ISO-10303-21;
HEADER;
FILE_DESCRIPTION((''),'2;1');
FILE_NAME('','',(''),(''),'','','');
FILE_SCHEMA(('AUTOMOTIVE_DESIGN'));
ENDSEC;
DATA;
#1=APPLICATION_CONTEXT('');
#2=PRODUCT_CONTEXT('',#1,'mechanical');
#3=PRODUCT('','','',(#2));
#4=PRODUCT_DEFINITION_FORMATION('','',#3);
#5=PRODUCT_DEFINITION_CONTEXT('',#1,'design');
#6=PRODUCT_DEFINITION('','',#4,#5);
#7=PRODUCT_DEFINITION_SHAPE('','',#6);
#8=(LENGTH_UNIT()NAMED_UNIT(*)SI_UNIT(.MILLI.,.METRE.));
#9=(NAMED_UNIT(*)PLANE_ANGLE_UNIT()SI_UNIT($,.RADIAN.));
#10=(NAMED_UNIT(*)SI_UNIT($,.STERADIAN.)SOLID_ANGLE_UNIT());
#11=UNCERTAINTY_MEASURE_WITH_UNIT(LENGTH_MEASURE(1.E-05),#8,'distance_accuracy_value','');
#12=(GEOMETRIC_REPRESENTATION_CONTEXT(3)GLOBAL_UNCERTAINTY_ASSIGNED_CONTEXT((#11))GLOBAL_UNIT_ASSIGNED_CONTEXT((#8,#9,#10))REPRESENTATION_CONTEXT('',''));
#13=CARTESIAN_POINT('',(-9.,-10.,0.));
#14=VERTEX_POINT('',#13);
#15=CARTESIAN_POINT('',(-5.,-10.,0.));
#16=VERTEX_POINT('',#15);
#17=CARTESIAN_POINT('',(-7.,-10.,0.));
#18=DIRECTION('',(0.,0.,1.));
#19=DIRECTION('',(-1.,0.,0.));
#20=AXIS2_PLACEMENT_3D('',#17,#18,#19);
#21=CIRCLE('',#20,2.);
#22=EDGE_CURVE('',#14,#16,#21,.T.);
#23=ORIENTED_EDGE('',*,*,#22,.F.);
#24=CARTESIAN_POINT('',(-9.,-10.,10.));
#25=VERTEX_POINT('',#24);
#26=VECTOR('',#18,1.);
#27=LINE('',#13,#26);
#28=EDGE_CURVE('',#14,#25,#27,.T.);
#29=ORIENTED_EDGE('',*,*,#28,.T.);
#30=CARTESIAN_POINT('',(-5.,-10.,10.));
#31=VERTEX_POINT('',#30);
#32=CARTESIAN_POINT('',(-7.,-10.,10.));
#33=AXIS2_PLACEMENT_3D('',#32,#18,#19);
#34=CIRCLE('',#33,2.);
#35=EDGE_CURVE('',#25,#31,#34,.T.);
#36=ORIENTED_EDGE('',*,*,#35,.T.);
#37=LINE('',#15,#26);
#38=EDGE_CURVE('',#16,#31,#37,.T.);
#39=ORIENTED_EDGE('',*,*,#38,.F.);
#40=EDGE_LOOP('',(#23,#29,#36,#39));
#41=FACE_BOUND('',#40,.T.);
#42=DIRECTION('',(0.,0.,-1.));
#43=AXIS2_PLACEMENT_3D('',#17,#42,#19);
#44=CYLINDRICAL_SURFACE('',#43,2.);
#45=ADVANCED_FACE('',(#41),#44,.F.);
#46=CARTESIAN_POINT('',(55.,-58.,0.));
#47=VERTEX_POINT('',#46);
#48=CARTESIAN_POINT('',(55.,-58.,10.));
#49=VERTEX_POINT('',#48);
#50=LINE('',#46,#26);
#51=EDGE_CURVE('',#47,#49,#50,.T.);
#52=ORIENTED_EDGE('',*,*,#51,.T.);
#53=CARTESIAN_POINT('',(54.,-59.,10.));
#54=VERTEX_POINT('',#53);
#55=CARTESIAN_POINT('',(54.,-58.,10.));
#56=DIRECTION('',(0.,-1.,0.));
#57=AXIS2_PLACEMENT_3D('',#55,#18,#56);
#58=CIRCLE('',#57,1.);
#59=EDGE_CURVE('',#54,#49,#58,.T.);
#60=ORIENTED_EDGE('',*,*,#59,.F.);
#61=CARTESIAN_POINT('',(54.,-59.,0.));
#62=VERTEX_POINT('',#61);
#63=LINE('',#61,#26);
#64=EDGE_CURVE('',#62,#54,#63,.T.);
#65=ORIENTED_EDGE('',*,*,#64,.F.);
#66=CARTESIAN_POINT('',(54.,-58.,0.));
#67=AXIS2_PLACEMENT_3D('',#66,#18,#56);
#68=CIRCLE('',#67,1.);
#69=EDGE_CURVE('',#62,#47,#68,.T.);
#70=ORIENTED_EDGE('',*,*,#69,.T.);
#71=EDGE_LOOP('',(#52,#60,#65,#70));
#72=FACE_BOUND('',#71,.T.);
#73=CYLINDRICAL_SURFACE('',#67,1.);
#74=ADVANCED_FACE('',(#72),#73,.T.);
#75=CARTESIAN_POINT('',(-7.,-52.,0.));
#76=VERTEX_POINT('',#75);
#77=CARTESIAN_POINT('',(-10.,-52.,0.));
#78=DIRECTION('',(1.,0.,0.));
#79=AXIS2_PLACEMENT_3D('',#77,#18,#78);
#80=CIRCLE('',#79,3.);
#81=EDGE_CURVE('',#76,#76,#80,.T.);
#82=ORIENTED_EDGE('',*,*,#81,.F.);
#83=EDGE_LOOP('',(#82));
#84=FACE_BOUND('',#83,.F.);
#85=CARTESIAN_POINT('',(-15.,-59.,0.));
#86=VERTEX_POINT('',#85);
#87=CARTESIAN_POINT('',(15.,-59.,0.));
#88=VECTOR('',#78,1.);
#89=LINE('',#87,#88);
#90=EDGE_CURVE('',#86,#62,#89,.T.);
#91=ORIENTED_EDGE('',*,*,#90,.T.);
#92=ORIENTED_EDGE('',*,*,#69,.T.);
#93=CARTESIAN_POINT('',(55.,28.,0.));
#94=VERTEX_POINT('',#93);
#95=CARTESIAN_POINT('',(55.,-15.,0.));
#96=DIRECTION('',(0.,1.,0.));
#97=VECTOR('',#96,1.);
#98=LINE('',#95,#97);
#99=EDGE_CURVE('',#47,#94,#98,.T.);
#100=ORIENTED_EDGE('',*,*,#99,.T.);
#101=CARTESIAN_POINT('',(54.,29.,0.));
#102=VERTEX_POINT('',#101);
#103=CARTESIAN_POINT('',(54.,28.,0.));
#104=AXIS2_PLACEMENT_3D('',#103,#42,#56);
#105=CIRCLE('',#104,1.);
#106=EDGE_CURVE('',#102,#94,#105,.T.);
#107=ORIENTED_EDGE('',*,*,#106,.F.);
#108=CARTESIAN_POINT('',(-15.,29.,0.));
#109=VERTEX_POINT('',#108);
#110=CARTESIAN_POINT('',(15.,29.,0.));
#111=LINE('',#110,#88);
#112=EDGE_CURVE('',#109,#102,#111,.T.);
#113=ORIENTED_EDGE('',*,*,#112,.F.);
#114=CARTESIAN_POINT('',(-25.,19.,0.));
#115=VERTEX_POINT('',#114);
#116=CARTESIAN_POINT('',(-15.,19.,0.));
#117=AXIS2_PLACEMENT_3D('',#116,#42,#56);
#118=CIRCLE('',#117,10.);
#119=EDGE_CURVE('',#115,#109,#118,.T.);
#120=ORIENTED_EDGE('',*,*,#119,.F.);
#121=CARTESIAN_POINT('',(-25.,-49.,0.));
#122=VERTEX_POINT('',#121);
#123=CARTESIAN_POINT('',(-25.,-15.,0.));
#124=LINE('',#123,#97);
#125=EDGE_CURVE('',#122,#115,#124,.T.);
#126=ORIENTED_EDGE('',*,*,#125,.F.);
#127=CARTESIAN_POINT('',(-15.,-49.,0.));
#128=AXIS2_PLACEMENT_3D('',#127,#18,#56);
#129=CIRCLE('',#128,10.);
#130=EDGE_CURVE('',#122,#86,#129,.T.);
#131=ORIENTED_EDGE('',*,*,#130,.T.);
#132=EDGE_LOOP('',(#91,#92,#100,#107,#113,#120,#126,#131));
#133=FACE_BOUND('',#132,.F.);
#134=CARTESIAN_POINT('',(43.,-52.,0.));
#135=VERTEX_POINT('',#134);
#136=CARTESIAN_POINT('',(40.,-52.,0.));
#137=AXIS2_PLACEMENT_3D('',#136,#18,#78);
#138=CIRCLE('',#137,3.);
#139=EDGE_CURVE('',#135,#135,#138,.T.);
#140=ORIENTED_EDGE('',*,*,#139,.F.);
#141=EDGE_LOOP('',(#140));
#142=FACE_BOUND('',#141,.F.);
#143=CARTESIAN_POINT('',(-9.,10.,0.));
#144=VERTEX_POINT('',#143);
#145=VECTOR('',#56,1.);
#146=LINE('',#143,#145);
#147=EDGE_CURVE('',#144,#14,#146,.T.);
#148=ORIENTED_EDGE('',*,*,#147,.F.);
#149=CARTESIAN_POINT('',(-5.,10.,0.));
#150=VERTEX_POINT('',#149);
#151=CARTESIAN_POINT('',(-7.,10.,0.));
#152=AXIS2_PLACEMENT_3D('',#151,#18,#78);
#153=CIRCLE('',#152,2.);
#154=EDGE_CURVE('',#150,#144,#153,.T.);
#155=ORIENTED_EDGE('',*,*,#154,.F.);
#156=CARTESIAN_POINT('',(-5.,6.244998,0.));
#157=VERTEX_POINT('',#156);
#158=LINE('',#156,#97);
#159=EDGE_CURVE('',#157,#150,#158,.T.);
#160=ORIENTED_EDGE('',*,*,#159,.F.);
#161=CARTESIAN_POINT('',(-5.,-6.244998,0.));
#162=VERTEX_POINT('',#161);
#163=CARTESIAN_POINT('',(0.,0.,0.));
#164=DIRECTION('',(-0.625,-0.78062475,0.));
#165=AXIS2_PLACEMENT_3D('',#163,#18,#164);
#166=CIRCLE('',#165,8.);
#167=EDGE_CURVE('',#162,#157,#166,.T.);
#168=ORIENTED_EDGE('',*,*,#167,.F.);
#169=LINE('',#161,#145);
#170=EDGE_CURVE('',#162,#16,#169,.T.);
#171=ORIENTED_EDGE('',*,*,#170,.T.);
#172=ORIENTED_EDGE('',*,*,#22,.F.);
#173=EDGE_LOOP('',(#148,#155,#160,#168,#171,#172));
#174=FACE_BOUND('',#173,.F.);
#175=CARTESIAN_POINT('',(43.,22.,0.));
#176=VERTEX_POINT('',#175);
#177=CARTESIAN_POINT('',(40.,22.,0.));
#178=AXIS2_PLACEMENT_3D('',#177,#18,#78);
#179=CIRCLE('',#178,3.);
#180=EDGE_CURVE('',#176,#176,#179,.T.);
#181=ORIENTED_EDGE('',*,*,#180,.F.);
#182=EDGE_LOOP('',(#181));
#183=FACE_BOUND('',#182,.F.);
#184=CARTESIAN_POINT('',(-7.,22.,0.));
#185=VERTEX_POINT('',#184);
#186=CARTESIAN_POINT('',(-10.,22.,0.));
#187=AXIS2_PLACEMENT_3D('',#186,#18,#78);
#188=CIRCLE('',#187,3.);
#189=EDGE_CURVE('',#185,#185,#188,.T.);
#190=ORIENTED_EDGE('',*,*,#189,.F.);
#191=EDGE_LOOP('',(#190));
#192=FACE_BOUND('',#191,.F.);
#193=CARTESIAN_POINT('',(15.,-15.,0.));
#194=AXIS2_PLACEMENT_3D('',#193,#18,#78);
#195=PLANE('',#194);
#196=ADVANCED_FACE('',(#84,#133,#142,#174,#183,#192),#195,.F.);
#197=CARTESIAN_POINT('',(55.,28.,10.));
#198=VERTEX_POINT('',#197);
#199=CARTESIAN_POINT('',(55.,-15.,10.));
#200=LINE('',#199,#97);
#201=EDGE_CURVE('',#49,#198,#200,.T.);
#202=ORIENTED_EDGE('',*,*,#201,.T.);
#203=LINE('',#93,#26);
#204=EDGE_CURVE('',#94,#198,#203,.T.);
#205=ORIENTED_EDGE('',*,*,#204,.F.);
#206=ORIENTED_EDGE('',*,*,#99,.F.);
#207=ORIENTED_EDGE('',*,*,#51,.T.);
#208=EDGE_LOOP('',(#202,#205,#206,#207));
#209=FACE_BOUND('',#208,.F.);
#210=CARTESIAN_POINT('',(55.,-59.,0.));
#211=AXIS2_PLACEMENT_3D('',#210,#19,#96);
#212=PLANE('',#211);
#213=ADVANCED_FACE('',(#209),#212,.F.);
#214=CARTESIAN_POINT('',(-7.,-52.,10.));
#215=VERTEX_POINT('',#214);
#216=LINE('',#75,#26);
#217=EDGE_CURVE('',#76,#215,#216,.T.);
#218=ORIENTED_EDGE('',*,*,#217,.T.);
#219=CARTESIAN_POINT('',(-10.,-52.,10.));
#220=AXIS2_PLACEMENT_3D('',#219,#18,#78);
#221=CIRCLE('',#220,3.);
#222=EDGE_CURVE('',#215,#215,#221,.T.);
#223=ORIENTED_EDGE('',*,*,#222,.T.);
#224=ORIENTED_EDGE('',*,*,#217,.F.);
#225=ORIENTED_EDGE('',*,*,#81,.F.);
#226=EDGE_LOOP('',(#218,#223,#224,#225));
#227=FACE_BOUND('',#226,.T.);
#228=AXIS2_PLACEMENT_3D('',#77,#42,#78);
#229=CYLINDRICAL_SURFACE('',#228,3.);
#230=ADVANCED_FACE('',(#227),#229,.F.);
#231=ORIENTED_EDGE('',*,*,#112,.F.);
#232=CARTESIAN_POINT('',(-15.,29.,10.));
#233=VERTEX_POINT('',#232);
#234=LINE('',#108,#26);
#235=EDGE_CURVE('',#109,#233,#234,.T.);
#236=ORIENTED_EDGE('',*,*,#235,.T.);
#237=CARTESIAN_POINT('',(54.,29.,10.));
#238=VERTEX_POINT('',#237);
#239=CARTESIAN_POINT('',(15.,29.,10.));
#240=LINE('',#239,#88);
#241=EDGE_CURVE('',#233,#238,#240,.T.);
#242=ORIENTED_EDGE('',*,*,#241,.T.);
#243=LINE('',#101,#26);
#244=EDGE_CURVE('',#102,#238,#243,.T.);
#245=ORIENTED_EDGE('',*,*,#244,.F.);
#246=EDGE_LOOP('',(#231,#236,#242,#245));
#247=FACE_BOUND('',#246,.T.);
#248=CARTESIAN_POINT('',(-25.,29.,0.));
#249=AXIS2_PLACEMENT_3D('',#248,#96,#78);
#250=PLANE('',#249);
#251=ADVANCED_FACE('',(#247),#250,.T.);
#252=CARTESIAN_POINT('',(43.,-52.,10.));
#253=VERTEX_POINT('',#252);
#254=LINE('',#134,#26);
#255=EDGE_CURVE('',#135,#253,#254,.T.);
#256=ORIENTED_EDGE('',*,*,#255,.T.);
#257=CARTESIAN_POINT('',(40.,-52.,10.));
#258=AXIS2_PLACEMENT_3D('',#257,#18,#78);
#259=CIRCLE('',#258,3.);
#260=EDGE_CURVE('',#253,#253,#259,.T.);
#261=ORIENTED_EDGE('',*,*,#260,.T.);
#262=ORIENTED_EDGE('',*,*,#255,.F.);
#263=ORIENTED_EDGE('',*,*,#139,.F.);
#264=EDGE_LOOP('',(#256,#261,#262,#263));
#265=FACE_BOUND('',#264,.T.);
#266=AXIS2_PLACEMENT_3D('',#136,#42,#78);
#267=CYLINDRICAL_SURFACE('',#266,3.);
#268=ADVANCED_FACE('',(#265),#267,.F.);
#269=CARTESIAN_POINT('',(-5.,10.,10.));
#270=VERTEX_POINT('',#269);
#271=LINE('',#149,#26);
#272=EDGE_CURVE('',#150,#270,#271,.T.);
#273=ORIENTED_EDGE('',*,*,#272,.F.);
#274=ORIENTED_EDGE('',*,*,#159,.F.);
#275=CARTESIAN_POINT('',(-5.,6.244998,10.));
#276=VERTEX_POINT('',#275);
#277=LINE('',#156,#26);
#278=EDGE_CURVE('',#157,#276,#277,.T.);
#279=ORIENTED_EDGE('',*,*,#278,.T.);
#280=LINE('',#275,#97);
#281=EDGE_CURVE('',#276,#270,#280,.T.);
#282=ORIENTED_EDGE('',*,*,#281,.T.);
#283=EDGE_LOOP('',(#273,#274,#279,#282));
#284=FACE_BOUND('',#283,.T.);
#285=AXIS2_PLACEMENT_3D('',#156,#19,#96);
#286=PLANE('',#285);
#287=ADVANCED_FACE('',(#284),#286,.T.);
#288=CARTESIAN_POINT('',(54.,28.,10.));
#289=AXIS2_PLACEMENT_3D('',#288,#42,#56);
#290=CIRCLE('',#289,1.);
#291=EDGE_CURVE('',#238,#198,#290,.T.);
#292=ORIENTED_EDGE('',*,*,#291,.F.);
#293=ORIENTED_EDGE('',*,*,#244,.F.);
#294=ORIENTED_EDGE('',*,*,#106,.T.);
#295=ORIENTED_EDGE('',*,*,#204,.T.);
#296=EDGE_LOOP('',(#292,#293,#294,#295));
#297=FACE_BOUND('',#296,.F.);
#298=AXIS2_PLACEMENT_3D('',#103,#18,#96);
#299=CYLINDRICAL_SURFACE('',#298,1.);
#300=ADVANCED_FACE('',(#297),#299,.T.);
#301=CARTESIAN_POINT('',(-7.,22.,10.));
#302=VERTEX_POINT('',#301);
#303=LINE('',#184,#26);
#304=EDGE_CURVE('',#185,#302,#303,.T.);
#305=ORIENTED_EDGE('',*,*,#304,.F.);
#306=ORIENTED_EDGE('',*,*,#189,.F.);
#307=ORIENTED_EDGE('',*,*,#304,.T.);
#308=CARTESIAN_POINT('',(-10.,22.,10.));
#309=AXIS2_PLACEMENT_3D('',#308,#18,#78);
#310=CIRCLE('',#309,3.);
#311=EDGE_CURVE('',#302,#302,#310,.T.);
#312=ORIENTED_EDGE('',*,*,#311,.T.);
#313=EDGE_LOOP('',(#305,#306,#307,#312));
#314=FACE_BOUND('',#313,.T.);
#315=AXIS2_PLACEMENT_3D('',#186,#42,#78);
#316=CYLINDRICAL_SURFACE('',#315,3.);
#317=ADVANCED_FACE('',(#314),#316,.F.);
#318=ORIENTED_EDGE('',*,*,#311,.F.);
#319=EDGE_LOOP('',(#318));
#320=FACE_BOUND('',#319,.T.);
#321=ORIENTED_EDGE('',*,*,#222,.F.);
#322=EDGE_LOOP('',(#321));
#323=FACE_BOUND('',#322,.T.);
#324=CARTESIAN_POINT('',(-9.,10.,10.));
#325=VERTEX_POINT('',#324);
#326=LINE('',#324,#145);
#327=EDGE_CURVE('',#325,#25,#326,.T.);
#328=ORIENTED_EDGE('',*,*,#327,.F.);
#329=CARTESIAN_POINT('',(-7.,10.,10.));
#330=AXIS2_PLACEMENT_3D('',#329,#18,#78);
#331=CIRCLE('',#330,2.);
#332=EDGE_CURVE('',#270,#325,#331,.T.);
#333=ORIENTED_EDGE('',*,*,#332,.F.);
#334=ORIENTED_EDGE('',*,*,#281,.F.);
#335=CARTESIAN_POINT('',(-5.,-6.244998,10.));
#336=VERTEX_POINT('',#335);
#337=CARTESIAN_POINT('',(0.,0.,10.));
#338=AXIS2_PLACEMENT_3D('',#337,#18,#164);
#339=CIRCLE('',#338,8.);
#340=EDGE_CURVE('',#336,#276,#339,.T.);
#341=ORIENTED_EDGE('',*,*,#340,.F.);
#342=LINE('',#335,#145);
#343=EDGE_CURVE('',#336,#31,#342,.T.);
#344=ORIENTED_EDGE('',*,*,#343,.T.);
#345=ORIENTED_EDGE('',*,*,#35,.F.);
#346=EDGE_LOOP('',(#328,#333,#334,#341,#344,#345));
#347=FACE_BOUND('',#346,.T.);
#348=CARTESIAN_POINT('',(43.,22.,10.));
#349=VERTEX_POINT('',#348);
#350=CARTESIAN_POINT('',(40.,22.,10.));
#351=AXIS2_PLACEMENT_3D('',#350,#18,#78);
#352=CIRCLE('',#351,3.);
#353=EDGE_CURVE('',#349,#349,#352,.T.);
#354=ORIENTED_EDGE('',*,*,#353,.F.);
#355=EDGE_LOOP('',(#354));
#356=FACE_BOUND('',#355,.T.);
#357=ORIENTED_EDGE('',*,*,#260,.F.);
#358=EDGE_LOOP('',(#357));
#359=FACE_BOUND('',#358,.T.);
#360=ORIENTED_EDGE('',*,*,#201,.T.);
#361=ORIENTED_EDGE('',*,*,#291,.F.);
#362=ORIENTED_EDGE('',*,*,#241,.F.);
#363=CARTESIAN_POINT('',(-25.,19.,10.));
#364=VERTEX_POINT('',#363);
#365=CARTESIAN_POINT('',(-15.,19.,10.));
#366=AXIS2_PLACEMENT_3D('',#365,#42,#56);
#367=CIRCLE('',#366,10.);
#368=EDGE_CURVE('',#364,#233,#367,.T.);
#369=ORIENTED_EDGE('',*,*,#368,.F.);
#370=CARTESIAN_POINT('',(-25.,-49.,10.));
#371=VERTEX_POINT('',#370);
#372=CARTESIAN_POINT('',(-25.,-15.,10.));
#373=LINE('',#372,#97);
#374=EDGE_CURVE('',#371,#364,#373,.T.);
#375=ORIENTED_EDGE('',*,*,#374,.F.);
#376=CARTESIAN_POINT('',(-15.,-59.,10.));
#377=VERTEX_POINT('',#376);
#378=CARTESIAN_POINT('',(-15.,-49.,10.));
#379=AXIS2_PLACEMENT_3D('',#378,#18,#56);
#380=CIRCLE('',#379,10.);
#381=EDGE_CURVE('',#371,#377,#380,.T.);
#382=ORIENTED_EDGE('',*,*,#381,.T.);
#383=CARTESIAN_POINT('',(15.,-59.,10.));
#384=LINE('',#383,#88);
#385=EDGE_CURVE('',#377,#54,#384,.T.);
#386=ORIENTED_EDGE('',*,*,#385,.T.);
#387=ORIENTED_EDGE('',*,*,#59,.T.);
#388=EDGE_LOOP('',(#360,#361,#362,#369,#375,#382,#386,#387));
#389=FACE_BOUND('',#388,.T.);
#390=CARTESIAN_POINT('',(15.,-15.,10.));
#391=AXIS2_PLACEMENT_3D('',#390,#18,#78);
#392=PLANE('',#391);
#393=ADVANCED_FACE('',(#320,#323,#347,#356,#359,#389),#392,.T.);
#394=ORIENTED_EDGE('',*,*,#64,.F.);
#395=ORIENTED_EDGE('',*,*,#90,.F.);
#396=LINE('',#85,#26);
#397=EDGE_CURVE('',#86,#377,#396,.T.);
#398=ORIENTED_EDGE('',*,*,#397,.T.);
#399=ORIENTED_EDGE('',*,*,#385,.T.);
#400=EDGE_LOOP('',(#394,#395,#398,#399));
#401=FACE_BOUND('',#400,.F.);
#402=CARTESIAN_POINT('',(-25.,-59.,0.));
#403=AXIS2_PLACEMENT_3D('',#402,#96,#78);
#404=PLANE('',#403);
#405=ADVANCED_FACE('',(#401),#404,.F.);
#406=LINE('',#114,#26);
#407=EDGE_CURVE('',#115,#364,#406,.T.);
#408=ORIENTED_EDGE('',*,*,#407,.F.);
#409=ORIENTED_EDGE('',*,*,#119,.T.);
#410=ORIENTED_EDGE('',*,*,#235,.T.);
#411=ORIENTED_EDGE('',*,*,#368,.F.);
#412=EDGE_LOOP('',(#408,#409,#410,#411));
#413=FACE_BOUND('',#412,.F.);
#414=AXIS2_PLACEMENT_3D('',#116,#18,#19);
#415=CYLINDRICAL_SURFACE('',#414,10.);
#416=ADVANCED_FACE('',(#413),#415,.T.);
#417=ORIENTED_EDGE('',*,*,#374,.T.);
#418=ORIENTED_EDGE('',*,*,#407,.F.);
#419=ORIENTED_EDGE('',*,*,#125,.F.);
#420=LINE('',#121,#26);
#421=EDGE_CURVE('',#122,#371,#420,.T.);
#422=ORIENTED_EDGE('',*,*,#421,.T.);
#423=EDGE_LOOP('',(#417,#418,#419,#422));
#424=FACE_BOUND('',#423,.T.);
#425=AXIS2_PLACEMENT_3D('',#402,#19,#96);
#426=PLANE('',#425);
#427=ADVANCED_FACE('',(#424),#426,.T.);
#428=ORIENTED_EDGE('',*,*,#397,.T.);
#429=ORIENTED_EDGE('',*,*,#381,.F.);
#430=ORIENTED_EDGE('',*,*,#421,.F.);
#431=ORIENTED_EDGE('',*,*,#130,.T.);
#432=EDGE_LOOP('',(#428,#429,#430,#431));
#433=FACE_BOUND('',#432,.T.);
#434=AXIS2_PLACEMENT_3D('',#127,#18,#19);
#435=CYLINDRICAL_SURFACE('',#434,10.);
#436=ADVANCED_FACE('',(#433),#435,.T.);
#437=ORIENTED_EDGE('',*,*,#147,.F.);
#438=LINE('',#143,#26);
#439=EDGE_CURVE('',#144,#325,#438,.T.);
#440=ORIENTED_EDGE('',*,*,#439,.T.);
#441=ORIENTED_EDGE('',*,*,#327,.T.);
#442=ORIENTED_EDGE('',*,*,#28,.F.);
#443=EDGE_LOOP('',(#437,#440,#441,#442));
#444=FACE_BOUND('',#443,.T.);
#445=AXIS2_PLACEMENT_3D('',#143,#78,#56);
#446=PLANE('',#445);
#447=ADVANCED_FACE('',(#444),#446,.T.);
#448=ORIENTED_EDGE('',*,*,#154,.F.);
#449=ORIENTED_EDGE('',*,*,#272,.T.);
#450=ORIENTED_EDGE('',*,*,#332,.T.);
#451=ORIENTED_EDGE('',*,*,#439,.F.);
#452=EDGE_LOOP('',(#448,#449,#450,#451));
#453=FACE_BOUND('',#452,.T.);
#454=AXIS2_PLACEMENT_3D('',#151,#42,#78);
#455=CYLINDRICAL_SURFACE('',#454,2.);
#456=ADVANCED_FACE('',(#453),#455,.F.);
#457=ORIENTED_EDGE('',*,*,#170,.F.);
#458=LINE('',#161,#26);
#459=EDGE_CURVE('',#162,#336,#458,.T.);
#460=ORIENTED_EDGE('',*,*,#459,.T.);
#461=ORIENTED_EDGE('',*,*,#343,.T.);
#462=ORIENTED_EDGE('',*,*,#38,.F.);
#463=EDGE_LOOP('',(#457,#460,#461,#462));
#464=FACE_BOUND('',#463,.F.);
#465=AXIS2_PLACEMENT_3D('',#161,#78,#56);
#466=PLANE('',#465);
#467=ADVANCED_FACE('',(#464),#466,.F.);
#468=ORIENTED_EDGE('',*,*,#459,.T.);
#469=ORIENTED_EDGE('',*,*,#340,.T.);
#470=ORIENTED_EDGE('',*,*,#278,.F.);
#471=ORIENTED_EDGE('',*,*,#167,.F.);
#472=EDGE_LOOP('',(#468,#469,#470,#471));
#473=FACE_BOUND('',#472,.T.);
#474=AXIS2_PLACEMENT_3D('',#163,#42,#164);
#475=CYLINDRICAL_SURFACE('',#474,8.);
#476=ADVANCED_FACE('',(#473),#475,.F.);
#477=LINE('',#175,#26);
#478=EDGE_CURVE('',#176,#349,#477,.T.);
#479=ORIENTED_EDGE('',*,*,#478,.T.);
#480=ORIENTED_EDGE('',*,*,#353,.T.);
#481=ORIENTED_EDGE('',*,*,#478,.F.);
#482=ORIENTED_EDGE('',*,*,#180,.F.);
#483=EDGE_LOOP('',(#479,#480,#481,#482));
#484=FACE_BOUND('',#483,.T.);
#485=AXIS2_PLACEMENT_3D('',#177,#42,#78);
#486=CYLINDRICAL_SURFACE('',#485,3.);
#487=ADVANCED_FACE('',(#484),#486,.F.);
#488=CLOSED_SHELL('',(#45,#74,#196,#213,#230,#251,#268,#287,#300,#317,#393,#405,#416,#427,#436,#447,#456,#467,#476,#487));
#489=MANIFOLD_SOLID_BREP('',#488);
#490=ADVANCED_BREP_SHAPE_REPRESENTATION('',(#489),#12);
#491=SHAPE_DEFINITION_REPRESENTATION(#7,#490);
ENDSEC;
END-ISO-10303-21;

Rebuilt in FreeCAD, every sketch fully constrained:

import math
import FreeCAD as App
import Part
import Sketcher

V = App.Vector
Q = App.Units.Quantity


def edges_at(feature, points):
    """Names of the edges that pass closest to the given points."""
    edges = feature.Shape.Edges
    near = lambda p: min(range(len(edges)), key=lambda i: edges[i].distToShape(Part.Vertex(*p))[0])
    return sorted({f"Edge{near(p) + 1}" for p in points})

doc = App.newDocument("Part")
body = doc.addObject("PartDesign::Body", "Body")

sketch1 = body.newObject("Sketcher::SketchObject", "Sketch")
sketch1.AttachmentSupport = (doc.getObject("XY_Plane"), [""])
sketch1.MapMode = "FlatFace"
sketch1.addGeometry([
    Part.LineSegment(V(-25, 29, 0), V(-25, -59, 0)),
    Part.LineSegment(V(-25, -59, 0), V(55, -59, 0)),
    Part.LineSegment(V(55, -59, 0), V(55, 29, 0)),
    Part.LineSegment(V(55, 29, 0), V(-25, 29, 0)),
    Part.Circle(V(-10, -52, 0), V(0, 0, 1), 3),
    Part.Circle(V(40, -52, 0), V(0, 0, 1), 3),
    Part.ArcOfCircle(Part.Circle(V(0, 0, 0), V(0, 0, 1), 8), math.radians(-128.682187), math.radians(128.682187)),
    Part.LineSegment(V(-5, -6.244998, 0), V(-5, -10, 0)),
    Part.ArcOfCircle(Part.Circle(V(-7, -10, 0), V(0, 0, 1), 2), math.radians(180), math.radians(360)),
    Part.LineSegment(V(-9, -10, 0), V(-9, 10, 0)),
    Part.ArcOfCircle(Part.Circle(V(-7, 10, 0), V(0, 0, 1), 2), math.radians(0), math.radians(180)),
    Part.LineSegment(V(-5, 10, 0), V(-5, 6.244998, 0)),
    Part.Circle(V(-10, 22, 0), V(0, 0, 1), 3),
    Part.Circle(V(40, 22, 0), V(0, 0, 1), 3),
], False)
sketch1.addConstraint([
    Sketcher.Constraint("Coincident", 0, 2, 1, 1),
    Sketcher.Constraint("Coincident", 1, 2, 2, 1),
    Sketcher.Constraint("Coincident", 2, 2, 3, 1),
    Sketcher.Constraint("Coincident", 3, 2, 0, 1),
    Sketcher.Constraint("Coincident", 6, 1, 7, 1),
    Sketcher.Constraint("Tangent", 7, 2, 8, 2),
    Sketcher.Constraint("Tangent", 8, 1, 9, 1),
    Sketcher.Constraint("Tangent", 9, 2, 10, 2),
    Sketcher.Constraint("Tangent", 10, 1, 11, 1),
    Sketcher.Constraint("Coincident", 11, 2, 6, 2),
    Sketcher.Constraint("Vertical", 0),
    Sketcher.Constraint("Horizontal", 1),
    Sketcher.Constraint("Vertical", 2),
    Sketcher.Constraint("Horizontal", 3),
    Sketcher.Constraint("Vertical", 7),
    Sketcher.Constraint("Vertical", 9),
    Sketcher.Constraint("Vertical", 11),
    Sketcher.Constraint("Coincident", 6, 3, -1, 1),
    Sketcher.Constraint("Equal", 4, 5),
    Sketcher.Constraint("Equal", 8, 10),
    Sketcher.Constraint("Equal", 5, 12),
    Sketcher.Constraint("Equal", 12, 13),
    Sketcher.Constraint("Horizontal", 4, 3, 5, 3),
    Sketcher.Constraint("Horizontal", 12, 3, 13, 3),
    Sketcher.Constraint("Vertical", 4, 3, 12, 3),
    Sketcher.Constraint("Vertical", 5, 3, 13, 3),
    Sketcher.Constraint("Equal", 7, 11),
    Sketcher.Constraint("Diameter", 4, Q("6 mm")),
    Sketcher.Constraint("Radius", 6, Q("8 mm")),
    Sketcher.Constraint("Radius", 8, Q("2 mm")),
    Sketcher.Constraint("DistanceX", 1, 1, 1, 2, Q("80 mm")),
    Sketcher.Constraint("DistanceY", 0, 2, 0, 1, Q("88 mm")),
    Sketcher.Constraint("DistanceY", 9, 1, 9, 2, Q("20 mm")),
    Sketcher.Constraint("DistanceX", 4, 3, -1, 1, Q("10 mm")),
    Sketcher.Constraint("DistanceY", 4, 3, -1, 1, Q("52 mm")),
    Sketcher.Constraint("DistanceX", -1, 1, 5, 3, Q("40 mm")),
    Sketcher.Constraint("DistanceX", 8, 3, -1, 1, Q("7 mm")),
    Sketcher.Constraint("DistanceY", -1, 1, 12, 3, Q("22 mm")),
    Sketcher.Constraint("DistanceX", 0, 2, -1, 1, Q("25 mm")),
    Sketcher.Constraint("DistanceY", 0, 2, -1, 1, Q("59 mm")),
])
pad1 = body.newObject("PartDesign::Pad", "Pad")
pad1.Profile = sketch1
pad1.Length = 10
doc.recompute()

fillet = body.newObject("PartDesign::Fillet", "Fillet")
fillet.Base = (pad1, edges_at(pad1, [(-25, -59, 5), (-25, 29, 5)]))
fillet.Radius = 10
doc.recompute()

fillet2 = body.newObject("PartDesign::Fillet", "Fillet001")
fillet2.Base = (fillet, edges_at(fillet, [(55, -59, 5), (55, 29, 5)]))
fillet2.Radius = 1

doc.recompute()
